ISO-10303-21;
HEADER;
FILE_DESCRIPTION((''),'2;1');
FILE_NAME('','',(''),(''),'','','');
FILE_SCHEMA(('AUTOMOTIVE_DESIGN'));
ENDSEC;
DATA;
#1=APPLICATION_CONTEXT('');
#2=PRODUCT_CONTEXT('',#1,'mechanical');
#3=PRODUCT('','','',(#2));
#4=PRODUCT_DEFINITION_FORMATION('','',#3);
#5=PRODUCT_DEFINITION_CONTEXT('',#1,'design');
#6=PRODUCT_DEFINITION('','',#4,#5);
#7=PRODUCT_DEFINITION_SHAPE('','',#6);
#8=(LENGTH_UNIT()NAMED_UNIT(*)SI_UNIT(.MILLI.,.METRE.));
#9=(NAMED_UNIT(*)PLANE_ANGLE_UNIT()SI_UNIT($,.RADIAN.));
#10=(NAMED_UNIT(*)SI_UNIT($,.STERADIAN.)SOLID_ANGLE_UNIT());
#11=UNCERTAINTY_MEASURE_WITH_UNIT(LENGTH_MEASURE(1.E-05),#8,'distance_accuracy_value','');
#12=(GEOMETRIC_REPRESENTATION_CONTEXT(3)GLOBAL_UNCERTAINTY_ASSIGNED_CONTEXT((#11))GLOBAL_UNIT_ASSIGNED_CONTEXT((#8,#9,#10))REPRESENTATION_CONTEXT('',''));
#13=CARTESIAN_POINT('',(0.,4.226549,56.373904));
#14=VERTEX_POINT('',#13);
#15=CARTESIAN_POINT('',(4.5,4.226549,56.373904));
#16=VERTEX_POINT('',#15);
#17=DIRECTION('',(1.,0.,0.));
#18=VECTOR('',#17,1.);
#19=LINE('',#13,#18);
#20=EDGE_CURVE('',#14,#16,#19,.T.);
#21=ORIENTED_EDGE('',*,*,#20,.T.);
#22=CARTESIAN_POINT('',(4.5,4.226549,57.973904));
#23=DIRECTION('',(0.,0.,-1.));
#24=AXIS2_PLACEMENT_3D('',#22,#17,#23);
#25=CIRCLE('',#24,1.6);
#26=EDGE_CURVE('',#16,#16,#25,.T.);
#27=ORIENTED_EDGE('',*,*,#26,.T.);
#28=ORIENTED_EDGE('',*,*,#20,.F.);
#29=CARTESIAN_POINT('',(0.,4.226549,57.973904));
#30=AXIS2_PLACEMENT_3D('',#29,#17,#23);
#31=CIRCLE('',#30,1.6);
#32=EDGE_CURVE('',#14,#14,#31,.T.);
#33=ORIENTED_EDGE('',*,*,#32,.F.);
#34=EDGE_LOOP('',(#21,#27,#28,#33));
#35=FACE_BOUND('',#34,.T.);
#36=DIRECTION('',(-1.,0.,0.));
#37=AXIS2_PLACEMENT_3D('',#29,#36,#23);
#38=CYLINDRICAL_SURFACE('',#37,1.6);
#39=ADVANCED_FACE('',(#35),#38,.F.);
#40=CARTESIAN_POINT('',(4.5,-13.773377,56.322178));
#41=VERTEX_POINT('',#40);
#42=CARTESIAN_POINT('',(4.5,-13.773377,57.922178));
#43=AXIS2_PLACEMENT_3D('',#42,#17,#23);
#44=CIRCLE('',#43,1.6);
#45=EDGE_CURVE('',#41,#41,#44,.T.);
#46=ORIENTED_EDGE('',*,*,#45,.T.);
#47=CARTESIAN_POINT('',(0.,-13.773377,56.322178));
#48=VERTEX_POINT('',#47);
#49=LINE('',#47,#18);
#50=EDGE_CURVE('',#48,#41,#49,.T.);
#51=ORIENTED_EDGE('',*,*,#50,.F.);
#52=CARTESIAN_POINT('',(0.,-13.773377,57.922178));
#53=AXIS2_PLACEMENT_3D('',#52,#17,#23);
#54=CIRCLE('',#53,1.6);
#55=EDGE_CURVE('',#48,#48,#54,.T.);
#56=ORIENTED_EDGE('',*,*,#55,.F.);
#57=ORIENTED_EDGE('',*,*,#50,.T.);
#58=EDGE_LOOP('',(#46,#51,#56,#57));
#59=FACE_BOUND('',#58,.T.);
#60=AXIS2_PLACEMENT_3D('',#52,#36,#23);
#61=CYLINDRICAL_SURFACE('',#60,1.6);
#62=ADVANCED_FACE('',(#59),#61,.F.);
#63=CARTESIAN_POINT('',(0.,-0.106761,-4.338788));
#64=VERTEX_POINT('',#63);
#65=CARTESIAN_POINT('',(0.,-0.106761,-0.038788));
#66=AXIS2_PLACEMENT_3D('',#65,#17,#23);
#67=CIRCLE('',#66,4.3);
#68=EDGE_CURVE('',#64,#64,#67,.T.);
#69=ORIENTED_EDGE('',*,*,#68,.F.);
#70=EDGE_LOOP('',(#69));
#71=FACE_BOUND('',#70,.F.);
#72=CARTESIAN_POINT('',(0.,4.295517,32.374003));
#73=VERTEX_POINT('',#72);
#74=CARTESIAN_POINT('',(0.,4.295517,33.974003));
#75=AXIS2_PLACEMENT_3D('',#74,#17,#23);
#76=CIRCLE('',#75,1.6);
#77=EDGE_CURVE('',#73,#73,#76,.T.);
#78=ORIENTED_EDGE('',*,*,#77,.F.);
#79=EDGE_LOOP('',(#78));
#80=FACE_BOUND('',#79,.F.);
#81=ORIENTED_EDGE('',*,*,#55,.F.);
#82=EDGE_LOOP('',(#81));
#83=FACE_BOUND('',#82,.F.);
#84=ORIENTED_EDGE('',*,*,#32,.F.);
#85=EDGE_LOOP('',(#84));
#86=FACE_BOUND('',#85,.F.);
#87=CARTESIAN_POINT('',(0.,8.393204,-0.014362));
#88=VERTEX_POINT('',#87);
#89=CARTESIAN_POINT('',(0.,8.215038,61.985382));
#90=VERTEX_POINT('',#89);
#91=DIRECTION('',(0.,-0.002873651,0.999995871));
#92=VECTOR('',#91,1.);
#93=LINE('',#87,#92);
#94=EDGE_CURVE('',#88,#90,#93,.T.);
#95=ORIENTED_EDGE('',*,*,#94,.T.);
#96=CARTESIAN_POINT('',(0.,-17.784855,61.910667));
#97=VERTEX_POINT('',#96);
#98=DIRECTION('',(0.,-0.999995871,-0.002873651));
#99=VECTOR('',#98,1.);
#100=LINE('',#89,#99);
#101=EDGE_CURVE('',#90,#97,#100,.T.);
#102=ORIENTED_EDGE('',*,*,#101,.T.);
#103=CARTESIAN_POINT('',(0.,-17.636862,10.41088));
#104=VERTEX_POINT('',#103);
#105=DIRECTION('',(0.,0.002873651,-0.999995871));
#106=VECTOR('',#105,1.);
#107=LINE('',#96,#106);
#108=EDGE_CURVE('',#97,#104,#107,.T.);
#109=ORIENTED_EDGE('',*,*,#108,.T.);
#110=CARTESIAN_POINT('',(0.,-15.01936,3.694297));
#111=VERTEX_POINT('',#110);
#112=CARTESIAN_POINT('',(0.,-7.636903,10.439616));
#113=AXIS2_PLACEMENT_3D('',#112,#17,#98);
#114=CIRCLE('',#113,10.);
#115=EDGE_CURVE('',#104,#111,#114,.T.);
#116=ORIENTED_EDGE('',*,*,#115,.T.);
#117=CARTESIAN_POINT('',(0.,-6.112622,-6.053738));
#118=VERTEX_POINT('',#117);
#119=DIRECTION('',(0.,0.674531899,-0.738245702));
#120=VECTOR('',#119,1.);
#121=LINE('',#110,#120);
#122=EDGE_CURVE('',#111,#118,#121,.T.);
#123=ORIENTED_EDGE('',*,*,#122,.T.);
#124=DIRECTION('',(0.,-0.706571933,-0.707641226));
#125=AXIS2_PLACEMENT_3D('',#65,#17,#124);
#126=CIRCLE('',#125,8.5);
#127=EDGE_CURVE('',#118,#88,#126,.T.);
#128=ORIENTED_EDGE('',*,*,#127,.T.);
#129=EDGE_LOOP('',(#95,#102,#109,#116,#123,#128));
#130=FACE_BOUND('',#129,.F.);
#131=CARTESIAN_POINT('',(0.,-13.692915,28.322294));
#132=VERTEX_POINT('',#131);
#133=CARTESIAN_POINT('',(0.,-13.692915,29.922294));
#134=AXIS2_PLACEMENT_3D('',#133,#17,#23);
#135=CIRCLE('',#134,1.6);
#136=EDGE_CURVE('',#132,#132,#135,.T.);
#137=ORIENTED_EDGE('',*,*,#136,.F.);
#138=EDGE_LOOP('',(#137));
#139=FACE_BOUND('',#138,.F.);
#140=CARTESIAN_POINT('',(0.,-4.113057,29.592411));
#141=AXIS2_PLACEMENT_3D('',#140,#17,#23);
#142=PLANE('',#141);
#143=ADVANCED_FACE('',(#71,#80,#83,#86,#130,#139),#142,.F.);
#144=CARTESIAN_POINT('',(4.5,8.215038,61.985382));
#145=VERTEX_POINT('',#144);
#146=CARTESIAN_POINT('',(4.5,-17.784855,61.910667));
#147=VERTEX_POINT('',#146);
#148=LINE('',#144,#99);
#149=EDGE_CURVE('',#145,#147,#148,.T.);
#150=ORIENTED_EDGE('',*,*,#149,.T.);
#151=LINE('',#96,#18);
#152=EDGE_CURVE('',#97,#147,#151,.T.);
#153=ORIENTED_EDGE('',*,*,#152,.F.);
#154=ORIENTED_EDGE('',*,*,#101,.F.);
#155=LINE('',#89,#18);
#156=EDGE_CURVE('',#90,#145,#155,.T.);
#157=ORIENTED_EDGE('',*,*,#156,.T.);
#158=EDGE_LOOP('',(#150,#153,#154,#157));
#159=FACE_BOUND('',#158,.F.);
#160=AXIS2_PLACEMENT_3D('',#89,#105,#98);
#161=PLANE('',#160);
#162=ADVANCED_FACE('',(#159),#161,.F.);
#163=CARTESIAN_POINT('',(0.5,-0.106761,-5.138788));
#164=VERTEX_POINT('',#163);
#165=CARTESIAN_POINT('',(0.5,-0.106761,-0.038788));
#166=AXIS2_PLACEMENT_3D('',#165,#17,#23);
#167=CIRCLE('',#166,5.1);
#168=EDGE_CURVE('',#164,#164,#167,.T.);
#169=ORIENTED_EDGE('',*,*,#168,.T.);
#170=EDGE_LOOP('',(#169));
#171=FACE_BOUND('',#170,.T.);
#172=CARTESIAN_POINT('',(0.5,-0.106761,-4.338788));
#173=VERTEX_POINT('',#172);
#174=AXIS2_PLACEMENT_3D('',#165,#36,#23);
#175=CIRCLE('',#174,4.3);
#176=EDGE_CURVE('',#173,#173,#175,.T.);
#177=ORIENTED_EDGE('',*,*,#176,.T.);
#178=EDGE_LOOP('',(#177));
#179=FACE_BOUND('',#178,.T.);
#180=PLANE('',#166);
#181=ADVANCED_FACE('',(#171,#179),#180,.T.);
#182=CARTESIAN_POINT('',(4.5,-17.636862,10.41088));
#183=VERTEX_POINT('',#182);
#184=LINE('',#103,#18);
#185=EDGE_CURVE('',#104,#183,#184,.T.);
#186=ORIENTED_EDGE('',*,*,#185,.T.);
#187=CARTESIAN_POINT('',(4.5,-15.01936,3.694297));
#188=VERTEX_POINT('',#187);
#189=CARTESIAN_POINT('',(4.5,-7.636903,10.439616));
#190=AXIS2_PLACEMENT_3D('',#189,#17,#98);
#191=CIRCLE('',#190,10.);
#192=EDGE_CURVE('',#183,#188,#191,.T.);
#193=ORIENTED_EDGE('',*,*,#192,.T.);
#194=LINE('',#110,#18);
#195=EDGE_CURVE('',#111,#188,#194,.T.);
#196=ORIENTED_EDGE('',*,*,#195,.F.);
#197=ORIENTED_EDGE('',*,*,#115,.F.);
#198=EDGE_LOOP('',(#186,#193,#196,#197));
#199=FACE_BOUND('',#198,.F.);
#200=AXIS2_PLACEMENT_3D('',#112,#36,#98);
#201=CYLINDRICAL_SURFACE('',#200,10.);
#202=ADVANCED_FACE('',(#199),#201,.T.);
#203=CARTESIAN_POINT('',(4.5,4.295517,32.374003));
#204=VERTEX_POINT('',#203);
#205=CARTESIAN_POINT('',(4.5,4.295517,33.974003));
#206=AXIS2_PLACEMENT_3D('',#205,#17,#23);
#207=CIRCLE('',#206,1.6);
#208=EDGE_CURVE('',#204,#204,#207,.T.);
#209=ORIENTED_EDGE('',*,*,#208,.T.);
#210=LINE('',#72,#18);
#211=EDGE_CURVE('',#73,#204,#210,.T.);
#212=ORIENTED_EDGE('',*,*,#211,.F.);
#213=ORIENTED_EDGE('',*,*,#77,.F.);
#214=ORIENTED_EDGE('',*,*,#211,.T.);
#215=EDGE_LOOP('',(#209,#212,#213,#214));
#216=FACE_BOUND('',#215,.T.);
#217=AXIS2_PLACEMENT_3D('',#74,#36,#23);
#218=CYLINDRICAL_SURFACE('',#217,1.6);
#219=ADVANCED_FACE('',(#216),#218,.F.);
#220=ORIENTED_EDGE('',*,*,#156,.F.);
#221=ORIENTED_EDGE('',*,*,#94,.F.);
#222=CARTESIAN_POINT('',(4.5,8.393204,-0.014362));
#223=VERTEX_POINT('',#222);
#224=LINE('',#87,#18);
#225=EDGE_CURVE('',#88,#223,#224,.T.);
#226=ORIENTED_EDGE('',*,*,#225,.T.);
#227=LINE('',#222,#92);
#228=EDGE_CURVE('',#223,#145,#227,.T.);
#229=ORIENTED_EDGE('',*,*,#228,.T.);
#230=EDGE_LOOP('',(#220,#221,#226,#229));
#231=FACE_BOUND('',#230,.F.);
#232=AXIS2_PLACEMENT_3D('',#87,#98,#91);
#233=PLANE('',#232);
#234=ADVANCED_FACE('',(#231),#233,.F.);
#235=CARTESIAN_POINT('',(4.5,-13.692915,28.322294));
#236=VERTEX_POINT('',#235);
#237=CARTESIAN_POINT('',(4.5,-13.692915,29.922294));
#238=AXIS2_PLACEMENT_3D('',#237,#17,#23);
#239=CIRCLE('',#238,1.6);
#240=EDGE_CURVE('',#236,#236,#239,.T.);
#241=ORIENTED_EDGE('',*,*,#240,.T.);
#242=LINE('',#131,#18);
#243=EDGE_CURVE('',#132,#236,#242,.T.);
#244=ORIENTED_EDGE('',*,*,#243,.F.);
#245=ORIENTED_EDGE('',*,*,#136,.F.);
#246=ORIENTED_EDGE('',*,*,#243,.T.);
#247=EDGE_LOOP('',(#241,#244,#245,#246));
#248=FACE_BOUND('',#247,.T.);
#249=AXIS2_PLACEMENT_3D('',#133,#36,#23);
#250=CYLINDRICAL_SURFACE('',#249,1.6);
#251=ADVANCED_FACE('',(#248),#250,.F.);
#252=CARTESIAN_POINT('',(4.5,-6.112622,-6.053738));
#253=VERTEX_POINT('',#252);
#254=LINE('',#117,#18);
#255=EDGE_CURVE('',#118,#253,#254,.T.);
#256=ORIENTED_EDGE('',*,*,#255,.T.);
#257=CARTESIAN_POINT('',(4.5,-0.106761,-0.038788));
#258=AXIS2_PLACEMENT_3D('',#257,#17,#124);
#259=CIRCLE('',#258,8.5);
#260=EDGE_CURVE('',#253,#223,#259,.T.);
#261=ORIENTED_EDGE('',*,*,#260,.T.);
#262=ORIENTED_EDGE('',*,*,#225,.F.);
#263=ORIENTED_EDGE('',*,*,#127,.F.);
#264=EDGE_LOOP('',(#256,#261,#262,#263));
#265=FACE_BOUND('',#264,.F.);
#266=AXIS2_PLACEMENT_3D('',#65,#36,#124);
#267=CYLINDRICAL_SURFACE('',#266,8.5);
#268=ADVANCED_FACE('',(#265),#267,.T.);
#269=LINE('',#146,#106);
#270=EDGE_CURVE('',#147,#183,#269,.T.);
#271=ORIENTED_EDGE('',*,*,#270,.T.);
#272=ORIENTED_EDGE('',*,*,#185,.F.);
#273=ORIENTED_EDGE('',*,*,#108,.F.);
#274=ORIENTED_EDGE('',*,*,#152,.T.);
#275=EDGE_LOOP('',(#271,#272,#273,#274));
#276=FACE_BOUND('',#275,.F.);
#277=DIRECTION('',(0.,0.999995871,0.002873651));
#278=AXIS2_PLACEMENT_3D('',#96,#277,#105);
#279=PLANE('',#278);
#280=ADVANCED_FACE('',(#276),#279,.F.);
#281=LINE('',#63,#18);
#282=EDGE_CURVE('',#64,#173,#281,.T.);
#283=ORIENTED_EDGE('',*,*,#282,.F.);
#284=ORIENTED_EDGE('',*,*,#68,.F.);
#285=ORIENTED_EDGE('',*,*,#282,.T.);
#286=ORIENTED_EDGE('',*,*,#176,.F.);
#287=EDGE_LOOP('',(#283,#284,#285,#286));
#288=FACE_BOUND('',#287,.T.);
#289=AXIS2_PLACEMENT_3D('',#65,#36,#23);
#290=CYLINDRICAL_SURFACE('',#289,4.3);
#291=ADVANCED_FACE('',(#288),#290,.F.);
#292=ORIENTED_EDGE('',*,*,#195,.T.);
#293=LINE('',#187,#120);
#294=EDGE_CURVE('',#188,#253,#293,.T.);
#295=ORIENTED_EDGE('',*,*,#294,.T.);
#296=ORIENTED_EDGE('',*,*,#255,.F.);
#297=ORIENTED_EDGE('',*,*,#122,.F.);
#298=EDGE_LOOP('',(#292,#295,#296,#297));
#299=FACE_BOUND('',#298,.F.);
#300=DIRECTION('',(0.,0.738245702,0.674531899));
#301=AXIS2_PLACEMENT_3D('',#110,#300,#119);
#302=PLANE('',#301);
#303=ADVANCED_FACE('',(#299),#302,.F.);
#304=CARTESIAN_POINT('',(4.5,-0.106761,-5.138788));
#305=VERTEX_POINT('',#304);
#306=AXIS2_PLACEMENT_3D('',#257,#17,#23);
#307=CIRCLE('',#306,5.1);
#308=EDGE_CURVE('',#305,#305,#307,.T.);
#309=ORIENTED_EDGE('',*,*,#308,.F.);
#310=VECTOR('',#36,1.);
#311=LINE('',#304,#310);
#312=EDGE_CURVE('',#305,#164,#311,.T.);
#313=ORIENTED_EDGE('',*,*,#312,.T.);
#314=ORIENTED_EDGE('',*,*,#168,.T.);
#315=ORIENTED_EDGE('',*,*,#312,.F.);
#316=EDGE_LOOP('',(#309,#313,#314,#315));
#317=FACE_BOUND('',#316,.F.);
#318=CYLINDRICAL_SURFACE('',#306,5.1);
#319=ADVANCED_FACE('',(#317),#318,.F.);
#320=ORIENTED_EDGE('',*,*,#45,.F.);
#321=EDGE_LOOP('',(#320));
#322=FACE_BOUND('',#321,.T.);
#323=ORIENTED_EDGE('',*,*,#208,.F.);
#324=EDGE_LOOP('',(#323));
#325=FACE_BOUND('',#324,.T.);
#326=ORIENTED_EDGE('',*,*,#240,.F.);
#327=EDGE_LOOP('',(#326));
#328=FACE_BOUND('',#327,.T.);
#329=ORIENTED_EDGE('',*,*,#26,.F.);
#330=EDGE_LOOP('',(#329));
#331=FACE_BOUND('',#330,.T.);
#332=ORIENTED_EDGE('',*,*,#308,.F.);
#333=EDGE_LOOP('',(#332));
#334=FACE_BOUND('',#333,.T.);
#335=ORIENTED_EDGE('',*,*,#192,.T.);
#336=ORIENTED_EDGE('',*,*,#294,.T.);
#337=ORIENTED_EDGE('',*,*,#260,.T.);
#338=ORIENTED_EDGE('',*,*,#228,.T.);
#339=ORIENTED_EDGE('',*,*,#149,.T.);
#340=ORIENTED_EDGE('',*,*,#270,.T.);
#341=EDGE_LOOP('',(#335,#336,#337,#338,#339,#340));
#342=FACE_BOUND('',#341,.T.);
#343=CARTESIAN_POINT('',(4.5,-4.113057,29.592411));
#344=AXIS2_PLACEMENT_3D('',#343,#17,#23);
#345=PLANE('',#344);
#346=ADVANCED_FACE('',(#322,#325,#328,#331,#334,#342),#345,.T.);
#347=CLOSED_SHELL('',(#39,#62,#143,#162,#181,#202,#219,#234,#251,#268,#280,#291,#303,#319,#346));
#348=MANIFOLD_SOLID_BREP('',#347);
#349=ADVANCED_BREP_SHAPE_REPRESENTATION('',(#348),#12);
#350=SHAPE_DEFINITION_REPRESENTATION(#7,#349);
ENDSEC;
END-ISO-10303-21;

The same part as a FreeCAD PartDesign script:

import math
import FreeCAD as App
import Part
import Sketcher
Q = App.Units.Quantity

doc = App.newDocument("Part")
body = doc.addObject("PartDesign::Body", "Body")

sketch1 = body.newObject("Sketcher::SketchObject", "Sketch")
sketch1.AttachmentSupport = (doc.getObject("YZ_Plane"), [""])
sketch1.MapMode = "FlatFace"
sketch1.addGeometry(Part.LineSegment(App.Vector(-17.8, 61.9, 0), App.Vector(-17.6, 10.4, 0)), False)
sketch1.addGeometry(Part.ArcOfCircle(Part.Circle(App.Vector(-7.6, 10.4, 0), App.Vector(0, 0, 1), 10), math.radians(-180), math.radians(-138)), False)
sketch1.addGeometry(Part.LineSegment(App.Vector(-15, 3.7, 0), App.Vector(-6.1, -6.1, 0)), False)
sketch1.addGeometry(Part.ArcOfCircle(Part.Circle(App.Vector(-0.1, 0, 0), App.Vector(0, 0, 1), 8.5), math.radians(-135), math.radians(0)), False)
sketch1.addGeometry(Part.LineSegment(App.Vector(8.4, 0, 0), App.Vector(8.2, 62, 0)), False)
sketch1.addGeometry(Part.LineSegment(App.Vector(8.2, 62, 0), App.Vector(-17.8, 61.9, 0)), False)
sketch1.addGeometry(Part.Circle(App.Vector(-13.8, 57.9, 0), App.Vector(0, 0, 1), 1.6), False)
sketch1.addGeometry(Part.Circle(App.Vector(-13.7, 29.9, 0), App.Vector(0, 0, 1), 1.6), False)
sketch1.addGeometry(Part.Circle(App.Vector(4.2, 58, 0), App.Vector(0, 0, 1), 1.6), False)
sketch1.addGeometry(Part.Circle(App.Vector(4.3, 34, 0), App.Vector(0, 0, 1), 1.6), False)
sketch1.addGeometry(Part.Circle(App.Vector(-0.1, 0, 0), App.Vector(0, 0, 1), 4.3), False)
sketch1.addConstraint(Sketcher.Constraint("Tangent", 0, 2, 1, 1))
sketch1.addConstraint(Sketcher.Constraint("Tangent", 1, 2, 2, 1))
sketch1.addConstraint(Sketcher.Constraint("Coincident", 2, 2, 3, 1))
sketch1.addConstraint(Sketcher.Constraint("Tangent", 3, 2, 4, 1))
sketch1.addConstraint(Sketcher.Constraint("Coincident", 4, 2, 5, 1))
sketch1.addConstraint(Sketcher.Constraint("Coincident", 5, 2, 0, 1))
sketch1.addConstraint(Sketcher.Constraint("Coincident", 10, 3, 3, 3))
sketch1.addConstraint(Sketcher.Constraint("Equal", 6, 7))
sketch1.addConstraint(Sketcher.Constraint("Equal", 7, 8))
sketch1.addConstraint(Sketcher.Constraint("Equal", 8, 9))
sketch1.addConstraint(Sketcher.Constraint("Parallel", 0, 4))
sketch1.addConstraint(Sketcher.Constraint("Perpendicular", 4, 5))
sketch1.addConstraint(Sketcher.Constraint("Radius", 1, Q("10 mm")))
sketch1.addConstraint(Sketcher.Constraint("Diameter", 6, Q("3.2 mm")))
sketch1.addConstraint(Sketcher.Constraint("Diameter", 10, Q("8.6 mm")))
sketch1.addConstraint(Sketcher.Constraint("Radius", 3, Q("8.5 mm")))
sketch1.addConstraint(Sketcher.Constraint("Distance", 4, Q("62 mm")))
sketch1.addConstraint(Sketcher.Constraint("Distance", 5, Q("26 mm")))
sketch1.addConstraint(Sketcher.Constraint("Distance", 0, Q("51.5 mm")))
sketch1.addConstraint(Sketcher.Constraint("DistanceY", 9, 3, 8, 3, Q("23.999901 mm")))
sketch1.addConstraint(Sketcher.Constraint("DistanceX", 0, 2, 3, 3, Q("17.530101 mm")))
sketch1.addConstraint(Sketcher.Constraint("DistanceX", 0, 2, 1, 2, Q("2.617502 mm")))
sketch1.addConstraint(Sketcher.Constraint("DistanceX", 3, 3, -1, 1, Q("0.106761 mm")))
sketch1.addConstraint(Sketcher.Constraint("DistanceY", -1, 1, 6, 3, Q("57.922178 mm")))
sketch1.addConstraint(Sketcher.Constraint("DistanceX", -1, 1, 8, 3, Q("4.226549 mm")))
sketch1.addConstraint(Sketcher.Constraint("DistanceY", -1, 1, 0, 2, Q("10.41088 mm")))
sketch1.addConstraint(Sketcher.Constraint("DistanceX", 7, 3, 1, 3, Q("6.056011 mm")))
sketch1.addConstraint(Sketcher.Constraint("DistanceY", 3, 3, 7, 3, Q("29.961082 mm")))
sketch1.addConstraint(Sketcher.Constraint("DistanceY", 7, 3, 8, 3, Q("28.05161 mm")))
sketch1.addConstraint(Sketcher.Constraint("DistanceX", 7, 3, 9, 3, Q("17.988431 mm")))
sketch1.addConstraint(Sketcher.Constraint("DistanceX", 5, 2, 6, 3, Q("4.011478 mm")))
pad1 = body.newObject("PartDesign::Pad", "Pad")
pad1.Profile = sketch1
pad1.Length = 4.5

sketch2 = body.newObject("Sketcher::SketchObject", "Sketch001")
sketch2.AttachmentSupport = (doc.getObject("YZ_Plane"), [""])
sketch2.MapMode = "FlatFace"
sketch2.AttachmentOffset = App.Placement(App.Vector(0, 0, 4.5), App.Rotation())
sketch2.addGeometry(Part.Circle(App.Vector(0, 0, 0), App.Vector(0, 0, 1), 5), False)
sketch2.addConstraint(Sketcher.Constraint("Diameter", 0, Q("10.2 mm")))
sketch2.addConstraint(Sketcher.Constraint("DistanceX", 0, 3, -1, 1, Q("0.106761 mm")))
sketch2.addConstraint(Sketcher.Constraint("DistanceY", 0, 3, -1, 1, Q("0.038788 mm")))
pocket1 = body.newObject("PartDesign::Pocket", "Pocket")
pocket1.Profile = sketch2
pocket1.Length = 4

doc.recompute()
